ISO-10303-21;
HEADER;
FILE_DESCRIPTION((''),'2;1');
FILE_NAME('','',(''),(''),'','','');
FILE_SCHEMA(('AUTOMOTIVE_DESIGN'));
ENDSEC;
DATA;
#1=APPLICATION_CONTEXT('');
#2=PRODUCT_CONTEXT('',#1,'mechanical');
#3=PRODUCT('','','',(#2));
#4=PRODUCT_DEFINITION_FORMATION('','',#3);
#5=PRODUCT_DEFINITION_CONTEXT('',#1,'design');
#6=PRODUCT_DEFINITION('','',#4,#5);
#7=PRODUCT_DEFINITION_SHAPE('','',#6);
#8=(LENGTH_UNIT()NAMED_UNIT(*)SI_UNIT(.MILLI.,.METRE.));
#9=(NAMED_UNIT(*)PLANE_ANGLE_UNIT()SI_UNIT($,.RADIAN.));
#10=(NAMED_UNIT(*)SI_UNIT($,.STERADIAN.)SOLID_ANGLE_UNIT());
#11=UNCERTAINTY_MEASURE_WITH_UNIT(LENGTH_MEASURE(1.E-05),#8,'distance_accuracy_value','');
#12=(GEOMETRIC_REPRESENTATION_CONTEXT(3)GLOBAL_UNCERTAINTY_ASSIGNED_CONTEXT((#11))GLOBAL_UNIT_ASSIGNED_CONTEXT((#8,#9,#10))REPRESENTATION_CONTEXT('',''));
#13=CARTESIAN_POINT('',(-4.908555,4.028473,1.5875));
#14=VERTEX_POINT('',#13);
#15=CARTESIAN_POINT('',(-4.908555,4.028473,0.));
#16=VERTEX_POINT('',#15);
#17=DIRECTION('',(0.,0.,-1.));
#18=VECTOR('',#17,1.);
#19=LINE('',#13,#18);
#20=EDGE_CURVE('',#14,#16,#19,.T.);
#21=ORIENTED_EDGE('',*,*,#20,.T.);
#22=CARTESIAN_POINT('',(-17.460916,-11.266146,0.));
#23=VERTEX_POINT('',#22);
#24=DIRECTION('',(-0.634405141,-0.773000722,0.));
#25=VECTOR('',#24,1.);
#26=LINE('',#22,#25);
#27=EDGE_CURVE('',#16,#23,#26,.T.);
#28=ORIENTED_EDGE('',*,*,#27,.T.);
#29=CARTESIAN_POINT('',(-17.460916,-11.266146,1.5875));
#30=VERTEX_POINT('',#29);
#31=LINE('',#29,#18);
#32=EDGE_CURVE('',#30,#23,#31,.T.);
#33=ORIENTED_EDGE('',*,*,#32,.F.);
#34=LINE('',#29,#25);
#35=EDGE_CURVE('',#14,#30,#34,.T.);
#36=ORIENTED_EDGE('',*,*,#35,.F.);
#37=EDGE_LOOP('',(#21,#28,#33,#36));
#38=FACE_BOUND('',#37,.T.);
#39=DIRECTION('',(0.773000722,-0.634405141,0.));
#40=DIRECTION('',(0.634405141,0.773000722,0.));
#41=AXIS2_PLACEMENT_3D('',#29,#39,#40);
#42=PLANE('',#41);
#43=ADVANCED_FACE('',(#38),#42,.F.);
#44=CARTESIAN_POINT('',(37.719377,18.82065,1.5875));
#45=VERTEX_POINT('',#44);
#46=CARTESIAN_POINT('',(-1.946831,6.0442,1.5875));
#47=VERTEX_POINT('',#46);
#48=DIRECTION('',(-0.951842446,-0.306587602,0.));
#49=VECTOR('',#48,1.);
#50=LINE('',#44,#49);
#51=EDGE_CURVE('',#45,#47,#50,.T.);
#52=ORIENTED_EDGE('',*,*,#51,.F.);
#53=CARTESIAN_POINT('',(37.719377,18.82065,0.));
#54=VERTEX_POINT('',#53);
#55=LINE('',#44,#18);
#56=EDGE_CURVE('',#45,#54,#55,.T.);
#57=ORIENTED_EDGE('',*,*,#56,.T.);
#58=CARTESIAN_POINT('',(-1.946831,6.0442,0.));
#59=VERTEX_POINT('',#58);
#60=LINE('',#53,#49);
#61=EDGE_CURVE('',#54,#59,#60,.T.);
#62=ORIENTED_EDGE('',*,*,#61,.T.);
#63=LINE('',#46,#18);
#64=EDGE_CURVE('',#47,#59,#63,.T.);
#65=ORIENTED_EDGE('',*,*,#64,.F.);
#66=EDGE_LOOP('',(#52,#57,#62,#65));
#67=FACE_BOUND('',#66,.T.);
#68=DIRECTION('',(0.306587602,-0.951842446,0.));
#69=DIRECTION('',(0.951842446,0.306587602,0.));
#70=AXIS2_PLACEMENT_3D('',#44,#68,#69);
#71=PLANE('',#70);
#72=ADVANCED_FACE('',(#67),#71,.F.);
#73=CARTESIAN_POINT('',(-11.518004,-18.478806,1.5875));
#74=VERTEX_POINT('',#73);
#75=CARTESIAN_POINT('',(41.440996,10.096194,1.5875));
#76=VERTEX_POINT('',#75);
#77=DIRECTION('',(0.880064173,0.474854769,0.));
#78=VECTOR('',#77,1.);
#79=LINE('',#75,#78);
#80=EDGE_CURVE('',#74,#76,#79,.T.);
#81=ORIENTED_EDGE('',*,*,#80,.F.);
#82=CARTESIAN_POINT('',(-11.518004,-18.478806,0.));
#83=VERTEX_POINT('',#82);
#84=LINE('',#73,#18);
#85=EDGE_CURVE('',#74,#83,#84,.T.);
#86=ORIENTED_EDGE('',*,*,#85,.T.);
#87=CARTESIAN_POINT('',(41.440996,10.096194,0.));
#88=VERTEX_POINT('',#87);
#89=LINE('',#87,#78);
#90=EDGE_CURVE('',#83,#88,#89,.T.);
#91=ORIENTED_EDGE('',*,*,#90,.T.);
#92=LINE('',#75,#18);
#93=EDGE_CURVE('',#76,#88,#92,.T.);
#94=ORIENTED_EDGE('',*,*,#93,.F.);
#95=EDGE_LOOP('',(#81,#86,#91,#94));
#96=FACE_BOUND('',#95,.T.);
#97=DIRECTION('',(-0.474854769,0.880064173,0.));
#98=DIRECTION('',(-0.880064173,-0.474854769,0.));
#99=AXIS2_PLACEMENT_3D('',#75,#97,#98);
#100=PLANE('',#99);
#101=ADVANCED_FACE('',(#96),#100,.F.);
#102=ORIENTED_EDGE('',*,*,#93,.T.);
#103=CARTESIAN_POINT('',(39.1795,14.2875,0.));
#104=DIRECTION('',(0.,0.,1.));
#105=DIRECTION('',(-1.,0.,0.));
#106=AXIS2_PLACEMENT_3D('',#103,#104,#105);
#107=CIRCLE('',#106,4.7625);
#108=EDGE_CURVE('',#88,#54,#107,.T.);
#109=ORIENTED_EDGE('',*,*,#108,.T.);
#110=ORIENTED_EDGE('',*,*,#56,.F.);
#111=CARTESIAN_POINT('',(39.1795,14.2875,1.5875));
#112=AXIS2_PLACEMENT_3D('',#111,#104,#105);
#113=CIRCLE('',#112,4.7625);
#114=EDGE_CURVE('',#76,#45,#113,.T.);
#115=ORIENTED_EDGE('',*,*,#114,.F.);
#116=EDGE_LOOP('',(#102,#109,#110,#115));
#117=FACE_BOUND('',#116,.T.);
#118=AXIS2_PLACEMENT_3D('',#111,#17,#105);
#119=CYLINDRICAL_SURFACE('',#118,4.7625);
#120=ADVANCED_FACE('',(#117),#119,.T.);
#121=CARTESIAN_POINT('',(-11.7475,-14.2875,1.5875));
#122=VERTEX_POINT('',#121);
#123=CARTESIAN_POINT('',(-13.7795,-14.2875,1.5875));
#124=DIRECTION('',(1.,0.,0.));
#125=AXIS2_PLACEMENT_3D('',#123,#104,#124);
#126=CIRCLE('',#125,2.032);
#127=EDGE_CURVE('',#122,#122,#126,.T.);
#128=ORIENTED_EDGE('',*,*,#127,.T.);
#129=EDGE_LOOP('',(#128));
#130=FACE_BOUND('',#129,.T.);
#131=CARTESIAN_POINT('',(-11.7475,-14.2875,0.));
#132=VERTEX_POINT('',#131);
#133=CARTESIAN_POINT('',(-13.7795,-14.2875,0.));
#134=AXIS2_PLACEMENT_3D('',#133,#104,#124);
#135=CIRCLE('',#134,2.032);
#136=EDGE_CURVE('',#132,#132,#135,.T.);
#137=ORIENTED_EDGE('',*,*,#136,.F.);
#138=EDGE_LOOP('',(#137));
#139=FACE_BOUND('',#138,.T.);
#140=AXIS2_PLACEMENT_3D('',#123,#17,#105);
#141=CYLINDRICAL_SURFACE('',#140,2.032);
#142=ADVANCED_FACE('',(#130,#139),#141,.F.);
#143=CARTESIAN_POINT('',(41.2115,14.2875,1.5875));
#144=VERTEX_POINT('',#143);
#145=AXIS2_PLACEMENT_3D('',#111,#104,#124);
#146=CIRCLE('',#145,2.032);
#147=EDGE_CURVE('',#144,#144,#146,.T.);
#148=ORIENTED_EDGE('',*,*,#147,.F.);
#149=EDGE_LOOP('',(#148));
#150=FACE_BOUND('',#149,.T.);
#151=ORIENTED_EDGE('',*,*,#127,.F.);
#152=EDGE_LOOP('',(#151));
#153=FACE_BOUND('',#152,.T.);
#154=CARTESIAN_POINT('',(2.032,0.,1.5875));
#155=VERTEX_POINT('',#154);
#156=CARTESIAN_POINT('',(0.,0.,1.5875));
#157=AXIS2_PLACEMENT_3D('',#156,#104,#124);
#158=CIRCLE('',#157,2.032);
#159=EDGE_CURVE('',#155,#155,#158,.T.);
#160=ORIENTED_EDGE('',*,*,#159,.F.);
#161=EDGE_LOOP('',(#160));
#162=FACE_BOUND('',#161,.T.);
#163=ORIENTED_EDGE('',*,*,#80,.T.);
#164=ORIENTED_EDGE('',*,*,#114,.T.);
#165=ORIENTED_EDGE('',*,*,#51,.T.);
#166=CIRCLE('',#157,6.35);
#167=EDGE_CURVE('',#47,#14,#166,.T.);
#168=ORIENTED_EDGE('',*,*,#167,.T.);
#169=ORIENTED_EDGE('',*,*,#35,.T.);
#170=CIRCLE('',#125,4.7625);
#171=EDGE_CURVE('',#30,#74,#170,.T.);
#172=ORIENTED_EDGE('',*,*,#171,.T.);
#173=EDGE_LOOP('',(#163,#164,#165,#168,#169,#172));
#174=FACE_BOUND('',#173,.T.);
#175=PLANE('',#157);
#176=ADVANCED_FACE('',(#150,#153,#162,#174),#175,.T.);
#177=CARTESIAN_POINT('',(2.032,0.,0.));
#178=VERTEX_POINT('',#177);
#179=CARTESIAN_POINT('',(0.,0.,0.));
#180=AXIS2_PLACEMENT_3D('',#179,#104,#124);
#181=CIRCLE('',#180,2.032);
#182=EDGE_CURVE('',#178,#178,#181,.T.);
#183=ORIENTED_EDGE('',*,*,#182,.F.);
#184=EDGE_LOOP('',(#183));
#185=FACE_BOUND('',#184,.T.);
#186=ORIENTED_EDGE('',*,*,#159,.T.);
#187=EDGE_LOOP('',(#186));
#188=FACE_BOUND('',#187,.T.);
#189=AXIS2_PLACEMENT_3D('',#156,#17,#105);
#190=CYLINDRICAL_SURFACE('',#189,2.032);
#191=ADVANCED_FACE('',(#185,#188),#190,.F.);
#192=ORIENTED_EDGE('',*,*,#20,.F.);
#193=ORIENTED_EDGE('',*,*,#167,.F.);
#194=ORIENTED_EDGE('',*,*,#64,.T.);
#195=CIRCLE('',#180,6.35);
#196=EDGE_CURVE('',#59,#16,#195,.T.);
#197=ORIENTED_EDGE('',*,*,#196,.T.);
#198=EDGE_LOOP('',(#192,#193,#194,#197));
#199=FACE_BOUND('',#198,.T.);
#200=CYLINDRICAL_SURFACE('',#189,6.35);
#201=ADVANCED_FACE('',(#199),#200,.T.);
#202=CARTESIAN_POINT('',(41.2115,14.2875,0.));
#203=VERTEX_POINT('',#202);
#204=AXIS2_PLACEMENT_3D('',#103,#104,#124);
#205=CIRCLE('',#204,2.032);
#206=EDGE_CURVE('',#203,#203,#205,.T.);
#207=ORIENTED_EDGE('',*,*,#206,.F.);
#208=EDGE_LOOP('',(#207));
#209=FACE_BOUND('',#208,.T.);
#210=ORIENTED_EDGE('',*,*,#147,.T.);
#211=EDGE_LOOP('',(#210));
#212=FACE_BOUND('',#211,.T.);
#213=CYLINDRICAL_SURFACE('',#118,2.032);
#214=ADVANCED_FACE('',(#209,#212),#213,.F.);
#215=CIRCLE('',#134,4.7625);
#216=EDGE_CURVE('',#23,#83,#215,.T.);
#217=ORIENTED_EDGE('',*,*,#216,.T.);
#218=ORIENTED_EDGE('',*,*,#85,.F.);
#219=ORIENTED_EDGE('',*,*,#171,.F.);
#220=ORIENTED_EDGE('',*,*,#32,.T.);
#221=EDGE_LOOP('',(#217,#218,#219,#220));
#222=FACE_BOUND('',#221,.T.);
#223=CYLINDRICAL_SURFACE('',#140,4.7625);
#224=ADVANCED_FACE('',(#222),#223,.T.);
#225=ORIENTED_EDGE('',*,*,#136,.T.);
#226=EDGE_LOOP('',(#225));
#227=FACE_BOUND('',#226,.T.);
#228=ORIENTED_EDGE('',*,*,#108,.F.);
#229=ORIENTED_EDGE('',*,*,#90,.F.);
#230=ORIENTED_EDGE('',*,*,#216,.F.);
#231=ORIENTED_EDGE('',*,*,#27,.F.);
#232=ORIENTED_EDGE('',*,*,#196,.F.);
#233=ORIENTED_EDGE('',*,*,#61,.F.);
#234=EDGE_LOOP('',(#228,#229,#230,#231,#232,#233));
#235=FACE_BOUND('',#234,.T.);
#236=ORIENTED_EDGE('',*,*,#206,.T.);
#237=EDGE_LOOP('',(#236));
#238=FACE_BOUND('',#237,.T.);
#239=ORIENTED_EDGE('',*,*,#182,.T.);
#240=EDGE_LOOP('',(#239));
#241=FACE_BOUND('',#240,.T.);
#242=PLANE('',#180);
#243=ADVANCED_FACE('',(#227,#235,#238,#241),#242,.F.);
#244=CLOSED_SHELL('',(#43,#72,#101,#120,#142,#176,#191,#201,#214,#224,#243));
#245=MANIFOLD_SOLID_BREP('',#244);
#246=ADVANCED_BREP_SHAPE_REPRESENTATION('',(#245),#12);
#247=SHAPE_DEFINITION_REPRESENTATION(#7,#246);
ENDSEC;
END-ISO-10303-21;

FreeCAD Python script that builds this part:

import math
import FreeCAD as App
import Part
import Sketcher

V = App.Vector
Q = App.Units.Quantity

doc = App.newDocument("Part")
body = doc.addObject("PartDesign::Body", "Body")

sketch1 = body.newObject("Sketcher::SketchObject", "Sketch")
sketch1.AttachmentSupport = (doc.getObject("XY_Plane"), [""])
sketch1.MapMode = "FlatFace"
sketch1.addGeometry([
    Part.LineSegment(V(-4.908555, 4.028473, 0), V(-17.460916, -11.266146, 0)),
    Part.ArcOfCircle(Part.Circle(V(-13.7795, -14.2875, 0), V(0, 0, 1), 4.7625), math.radians(140.624121), math.radians(298.349894)),
    Part.LineSegment(V(-11.518004, -18.478806, 0), V(41.440996, 10.096194, 0)),
    Part.ArcOfCircle(Part.Circle(V(39.1795, 14.2875, 0), V(0, 0, 1), 4.7625), math.radians(-61.650106), math.radians(107.853703)),
    Part.LineSegment(V(37.719377, 18.82065, 0), V(-1.946831, 6.0442, 0)),
    Part.ArcOfCircle(Part.Circle(V(0, 0, 0), V(0, 0, 1), 6.35), math.radians(107.853703), math.radians(140.624121)),
    Part.Circle(V(-13.7795, -14.2875, 0), V(0, 0, 1), 2.032),
    Part.Circle(V(0, 0, 0), V(0, 0, 1), 2.032),
    Part.Circle(V(39.1795, 14.2875, 0), V(0, 0, 1), 2.032),
], False)
sketch1.addConstraint([
    Sketcher.Constraint("Tangent", 0, 2, 1, 1),
    Sketcher.Constraint("Tangent", 1, 2, 2, 1),
    Sketcher.Constraint("Tangent", 2, 2, 3, 1),
    Sketcher.Constraint("Tangent", 3, 2, 4, 1),
    Sketcher.Constraint("Tangent", 4, 2, 5, 1),
    Sketcher.Constraint("Tangent", 5, 2, 0, 1),
    Sketcher.Constraint("Coincident", 5, 3, -1, 1),
    Sketcher.Constraint("Coincident", 7, 3, -1, 1),
    Sketcher.Constraint("Coincident", 6, 3, 1, 3),
    Sketcher.Constraint("Coincident", 8, 3, 3, 3),
    Sketcher.Constraint("Equal", 1, 3),
    Sketcher.Constraint("Equal", 6, 7),
    Sketcher.Constraint("Equal", 7, 8),
    Sketcher.Constraint("Diameter", 6, Q("0.16 in")),
    Sketcher.Constraint("Radius", 5, Q("0.25 in")),
    Sketcher.Constraint("Radius", 1, Q("0.1875 in")),
    Sketcher.Constraint("DistanceY", 1, 3, -1, 1, Q("0.5625 in")),
    Sketcher.Constraint("DistanceY", -1, 1, 3, 3, Q("0.5625 in")),
    Sketcher.Constraint("DistanceX", 1, 3, 3, 3, Q("2.085 in")),
    Sketcher.Constraint("DistanceX", 1, 3, -1, 1, Q("0.5425 in")),
])
pad1 = body.newObject("PartDesign::Pad", "Pad")
pad1.Profile = sketch1
pad1.Length = Q("0.0625 in")

doc.recompute()
